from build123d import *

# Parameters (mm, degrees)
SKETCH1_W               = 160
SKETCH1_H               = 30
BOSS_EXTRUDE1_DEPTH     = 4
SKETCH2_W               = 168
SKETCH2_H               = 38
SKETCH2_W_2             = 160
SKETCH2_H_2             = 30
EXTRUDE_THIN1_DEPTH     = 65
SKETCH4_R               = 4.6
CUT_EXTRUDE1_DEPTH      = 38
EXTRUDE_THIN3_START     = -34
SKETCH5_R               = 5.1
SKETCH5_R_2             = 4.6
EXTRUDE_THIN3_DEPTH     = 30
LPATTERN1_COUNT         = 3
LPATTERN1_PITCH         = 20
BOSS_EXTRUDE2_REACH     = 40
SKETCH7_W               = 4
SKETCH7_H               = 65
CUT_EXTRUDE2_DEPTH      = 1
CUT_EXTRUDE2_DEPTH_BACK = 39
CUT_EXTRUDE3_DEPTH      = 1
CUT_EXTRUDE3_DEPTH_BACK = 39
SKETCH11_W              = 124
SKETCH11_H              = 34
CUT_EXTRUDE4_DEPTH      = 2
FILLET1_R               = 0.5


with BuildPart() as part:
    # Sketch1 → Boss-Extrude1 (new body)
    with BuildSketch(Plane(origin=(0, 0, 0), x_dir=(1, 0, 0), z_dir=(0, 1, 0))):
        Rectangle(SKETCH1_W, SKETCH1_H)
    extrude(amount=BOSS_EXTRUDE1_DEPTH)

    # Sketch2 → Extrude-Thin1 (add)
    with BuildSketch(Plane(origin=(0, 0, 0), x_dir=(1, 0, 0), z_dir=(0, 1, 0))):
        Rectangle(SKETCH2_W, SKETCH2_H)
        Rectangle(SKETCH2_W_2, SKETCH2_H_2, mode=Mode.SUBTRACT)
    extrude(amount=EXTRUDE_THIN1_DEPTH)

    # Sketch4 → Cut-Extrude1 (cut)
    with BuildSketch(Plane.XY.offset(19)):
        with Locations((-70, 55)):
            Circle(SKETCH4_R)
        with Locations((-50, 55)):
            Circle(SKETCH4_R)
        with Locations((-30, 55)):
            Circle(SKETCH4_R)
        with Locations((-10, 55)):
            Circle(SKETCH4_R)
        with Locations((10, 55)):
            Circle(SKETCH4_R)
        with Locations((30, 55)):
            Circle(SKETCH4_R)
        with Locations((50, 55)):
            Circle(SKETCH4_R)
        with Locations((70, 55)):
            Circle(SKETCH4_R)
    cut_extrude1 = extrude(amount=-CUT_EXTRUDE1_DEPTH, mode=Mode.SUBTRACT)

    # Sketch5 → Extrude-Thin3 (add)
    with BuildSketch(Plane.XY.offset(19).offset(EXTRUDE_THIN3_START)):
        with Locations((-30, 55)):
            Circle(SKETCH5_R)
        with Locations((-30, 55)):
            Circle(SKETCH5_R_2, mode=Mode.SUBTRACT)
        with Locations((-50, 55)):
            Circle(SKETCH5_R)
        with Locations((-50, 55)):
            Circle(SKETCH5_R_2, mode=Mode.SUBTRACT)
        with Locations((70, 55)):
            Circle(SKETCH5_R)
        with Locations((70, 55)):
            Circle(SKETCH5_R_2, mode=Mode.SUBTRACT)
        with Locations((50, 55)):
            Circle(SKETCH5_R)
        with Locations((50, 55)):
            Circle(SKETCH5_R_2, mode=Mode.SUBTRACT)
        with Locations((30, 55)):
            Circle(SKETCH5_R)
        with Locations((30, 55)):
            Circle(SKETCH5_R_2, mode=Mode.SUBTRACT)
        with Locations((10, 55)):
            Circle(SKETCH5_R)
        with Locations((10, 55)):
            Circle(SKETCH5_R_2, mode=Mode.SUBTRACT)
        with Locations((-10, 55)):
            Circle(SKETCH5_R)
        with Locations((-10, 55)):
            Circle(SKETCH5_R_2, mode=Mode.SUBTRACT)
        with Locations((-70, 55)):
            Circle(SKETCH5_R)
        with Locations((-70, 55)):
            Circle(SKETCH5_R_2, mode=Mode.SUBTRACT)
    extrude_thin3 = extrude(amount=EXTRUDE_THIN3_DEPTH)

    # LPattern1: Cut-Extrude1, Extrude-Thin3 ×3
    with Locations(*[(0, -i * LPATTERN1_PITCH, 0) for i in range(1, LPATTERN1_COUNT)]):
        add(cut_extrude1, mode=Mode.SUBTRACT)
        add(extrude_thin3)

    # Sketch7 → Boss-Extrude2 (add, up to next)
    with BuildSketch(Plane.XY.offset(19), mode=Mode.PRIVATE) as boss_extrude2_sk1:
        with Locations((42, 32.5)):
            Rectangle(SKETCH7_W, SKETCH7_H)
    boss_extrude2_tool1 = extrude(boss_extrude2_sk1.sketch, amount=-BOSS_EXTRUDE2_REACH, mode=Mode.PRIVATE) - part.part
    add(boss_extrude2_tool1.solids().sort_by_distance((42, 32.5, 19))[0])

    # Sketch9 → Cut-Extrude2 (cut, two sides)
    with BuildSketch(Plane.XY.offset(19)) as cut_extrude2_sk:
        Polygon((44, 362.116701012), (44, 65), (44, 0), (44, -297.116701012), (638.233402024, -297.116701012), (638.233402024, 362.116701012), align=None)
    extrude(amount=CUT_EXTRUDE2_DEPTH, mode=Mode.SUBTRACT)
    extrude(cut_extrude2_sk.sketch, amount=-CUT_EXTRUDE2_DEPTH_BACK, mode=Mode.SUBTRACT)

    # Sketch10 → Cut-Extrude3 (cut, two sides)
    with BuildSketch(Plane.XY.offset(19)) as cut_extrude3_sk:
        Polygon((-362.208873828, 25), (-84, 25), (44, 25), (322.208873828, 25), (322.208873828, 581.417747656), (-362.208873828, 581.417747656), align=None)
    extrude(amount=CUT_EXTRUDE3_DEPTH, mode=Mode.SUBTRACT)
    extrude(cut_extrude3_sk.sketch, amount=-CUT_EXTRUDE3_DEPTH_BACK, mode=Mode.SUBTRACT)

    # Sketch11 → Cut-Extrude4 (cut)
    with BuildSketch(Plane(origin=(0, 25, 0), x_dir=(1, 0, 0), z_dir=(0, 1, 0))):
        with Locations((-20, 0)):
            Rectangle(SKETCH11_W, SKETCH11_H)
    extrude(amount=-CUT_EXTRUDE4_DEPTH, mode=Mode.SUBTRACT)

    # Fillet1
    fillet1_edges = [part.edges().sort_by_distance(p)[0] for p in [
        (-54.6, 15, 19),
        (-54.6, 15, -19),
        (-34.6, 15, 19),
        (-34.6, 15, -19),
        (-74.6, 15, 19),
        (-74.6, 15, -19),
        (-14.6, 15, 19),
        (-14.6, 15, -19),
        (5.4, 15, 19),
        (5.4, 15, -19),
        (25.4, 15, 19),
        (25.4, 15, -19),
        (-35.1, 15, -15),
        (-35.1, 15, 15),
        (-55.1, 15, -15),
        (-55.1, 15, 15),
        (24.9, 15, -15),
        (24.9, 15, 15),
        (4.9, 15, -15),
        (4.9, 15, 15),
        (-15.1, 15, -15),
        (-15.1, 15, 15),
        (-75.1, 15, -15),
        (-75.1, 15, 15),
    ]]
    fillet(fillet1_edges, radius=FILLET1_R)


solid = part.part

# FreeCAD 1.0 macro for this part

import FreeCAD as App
import Part
import Sketcher
Q = App.Units.Quantity


def edges_at(feature, points):
    """Names of the edges that pass closest to the given points."""
    edges = feature.Shape.Edges
    near = lambda p: min(range(len(edges)), key=lambda i: edges[i].distToShape(Part.Vertex(*p))[0])
    return sorted({f"Edge{near(p) + 1}" for p in points})

doc = App.newDocument("Part")
body = doc.addObject("PartDesign::Body", "Body")

# Sketch on XZ plane
sketch1 = body.newObject("Sketcher::SketchObject", "Sketch")
sketch1.AttachmentSupport = (doc.getObject("XZ_Plane"), [""])
sketch1.MapMode = "FlatFace"
sketch1.addGeometry(Part.LineSegment(App.Vector(-80, -15, 0), App.Vector(-80, 15, 0)), False)
sketch1.addGeometry(Part.LineSegment(App.Vector(-80, 15, 0), App.Vector(80, 15, 0)), False)
sketch1.addGeometry(Part.LineSegment(App.Vector(80, 15, 0), App.Vector(80, -15, 0)), False)
sketch1.addGeometry(Part.LineSegment(App.Vector(80, -15, 0), App.Vector(-80, -15, 0)), False)
sketch1.addConstraint(Sketcher.Constraint("Coincident", 0, 2, 1, 1))
sketch1.addConstraint(Sketcher.Constraint("Coincident", 1, 2, 2, 1))
sketch1.addConstraint(Sketcher.Constraint("Coincident", 2, 2, 3, 1))
sketch1.addConstraint(Sketcher.Constraint("Coincident", 3, 2, 0, 1))
sketch1.addConstraint(Sketcher.Constraint("Vertical", 0))
sketch1.addConstraint(Sketcher.Constraint("Horizontal", 1))
sketch1.addConstraint(Sketcher.Constraint("Vertical", 2))
sketch1.addConstraint(Sketcher.Constraint("Horizontal", 3))
sketch1.addConstraint(Sketcher.Constraint("Symmetric", 0, 2, 2, 2, -1, 1))
sketch1.addConstraint(Sketcher.Constraint("DistanceX", 1, 1, 1, 2, Q("160 mm")))
sketch1.addConstraint(Sketcher.Constraint("DistanceY", 0, 1, 0, 2, Q("30 mm")))
pad1 = body.newObject("PartDesign::Pad", "Pad")
pad1.Profile = sketch1
pad1.Length = 4
pad1.Reversed = True

# Sketch on XZ plane
sketch2 = body.newObject("Sketcher::SketchObject", "Sketch001")
sketch2.AttachmentSupport = (doc.getObject("XZ_Plane"), [""])
sketch2.MapMode = "FlatFace"
sketch2.addGeometry(Part.LineSegment(App.Vector(-84, -19, 0), App.Vector(-84, 19, 0)), False)
sketch2.addGeometry(Part.LineSegment(App.Vector(-84, 19, 0), App.Vector(84, 19, 0)), False)
sketch2.addGeometry(Part.LineSegment(App.Vector(84, 19, 0), App.Vector(84, -19, 0)), False)
sketch2.addGeometry(Part.LineSegment(App.Vector(84, -19, 0), App.Vector(-84, -19, 0)), False)
sketch2.addGeometry(Part.LineSegment(App.Vector(80, 15, 0), App.Vector(-80, 15, 0)), False)
sketch2.addGeometry(Part.LineSegment(App.Vector(-80, 15, 0), App.Vector(-80, -15, 0)), False)
sketch2.addGeometry(Part.LineSegment(App.Vector(-80, -15, 0), App.Vector(80, -15, 0)), False)
sketch2.addGeometry(Part.LineSegment(App.Vector(80, -15, 0), App.Vector(80, 15, 0)), False)
sketch2.addConstraint(Sketcher.Constraint("Coincident", 0, 2, 1, 1))
sketch2.addConstraint(Sketcher.Constraint("Coincident", 1, 2, 2, 1))
sketch2.addConstraint(Sketcher.Constraint("Coincident", 2, 2, 3, 1))
sketch2.addConstraint(Sketcher.Constraint("Coincident", 3, 2, 0, 1))
sketch2.addConstraint(Sketcher.Constraint("Coincident", 4, 2, 5, 1))
sketch2.addConstraint(Sketcher.Constraint("Coincident", 5, 2, 6, 1))
sketch2.addConstraint(Sketcher.Constraint("Coincident", 6, 2, 7, 1))
sketch2.addConstraint(Sketcher.Constraint("Coincident", 7, 2, 4, 1))
sketch2.addConstraint(Sketcher.Constraint("Vertical", 0))
sketch2.addConstraint(Sketcher.Constraint("Horizontal", 1))
sketch2.addConstraint(Sketcher.Constraint("Vertical", 2))
sketch2.addConstraint(Sketcher.Constraint("Horizontal", 3))
sketch2.addConstraint(Sketcher.Constraint("Horizontal", 4))
sketch2.addConstraint(Sketcher.Constraint("Vertical", 5))
sketch2.addConstraint(Sketcher.Constraint("Horizontal", 6))
sketch2.addConstraint(Sketcher.Constraint("Vertical", 7))
sketch2.addConstraint(Sketcher.Constraint("Symmetric", 0, 2, 2, 2, -1, 1))
sketch2.addConstraint(Sketcher.Constraint("Symmetric", 4, 2, 6, 2, -1, 1))
sketch2.addConstraint(Sketcher.Constraint("DistanceX", 1, 1, 1, 2, Q("168 mm")))
sketch2.addConstraint(Sketcher.Constraint("DistanceX", 4, 2, 4, 1, Q("160 mm")))
sketch2.addConstraint(Sketcher.Constraint("DistanceY", 0, 1, 0, 2, Q("38 mm")))
sketch2.addConstraint(Sketcher.Constraint("DistanceY", 5, 2, 5, 1, Q("30 mm")))
pad2 = body.newObject("PartDesign::Pad", "Pad001")
pad2.Profile = sketch2
pad2.Length = 65
pad2.Reversed = True

# Sketch on XY plane
sketch3 = body.newObject("Sketcher::SketchObject", "Sketch002")
sketch3.AttachmentSupport = (doc.getObject("XY_Plane"), [""])
sketch3.MapMode = "FlatFace"
sketch3.AttachmentOffset = App.Placement(App.Vector(0, 0, 19), App.Rotation())
sketch3.addGeometry(Part.Circle(App.Vector(-70, 55, 0), App.Vector(0, 0, 1), 4.6), False)
sketch3.addGeometry(Part.Circle(App.Vector(-50, 55, 0), App.Vector(0, 0, 1), 4.6), False)
sketch3.addGeometry(Part.Circle(App.Vector(-30, 55, 0), App.Vector(0, 0, 1), 4.6), False)
sketch3.addGeometry(Part.Circle(App.Vector(-10, 55, 0), App.Vector(0, 0, 1), 4.6), False)
sketch3.addGeometry(Part.Circle(App.Vector(10, 55, 0), App.Vector(0, 0, 1), 4.6), False)
sketch3.addGeometry(Part.Circle(App.Vector(30, 55, 0), App.Vector(0, 0, 1), 4.6), False)
sketch3.addGeometry(Part.Circle(App.Vector(50, 55, 0), App.Vector(0, 0, 1), 4.6), False)
sketch3.addGeometry(Part.Circle(App.Vector(70, 55, 0), App.Vector(0, 0, 1), 4.6), False)
sketch3.addConstraint(Sketcher.Constraint("Equal", 0, 1))
sketch3.addConstraint(Sketcher.Constraint("Equal", 1, 2))
sketch3.addConstraint(Sketcher.Constraint("Equal", 2, 3))
sketch3.addConstraint(Sketcher.Constraint("Equal", 3, 4))
sketch3.addConstraint(Sketcher.Constraint("Equal", 4, 5))
sketch3.addConstraint(Sketcher.Constraint("Equal", 5, 6))
sketch3.addConstraint(Sketcher.Constraint("Equal", 6, 7))
sketch3.addConstraint(Sketcher.Constraint("Symmetric", 3, 3, 4, 3, -2))
sketch3.addConstraint(Sketcher.Constraint("Symmetric", 2, 3, 5, 3, -2))
sketch3.addConstraint(Sketcher.Constraint("Symmetric", 1, 3, 6, 3, -2))
sketch3.addConstraint(Sketcher.Constraint("Symmetric", 0, 3, 7, 3, -2))
sketch3.addConstraint(Sketcher.Constraint("Horizontal", 0, 3, 1, 3))
sketch3.addConstraint(Sketcher.Constraint("Horizontal", 1, 3, 2, 3))
sketch3.addConstraint(Sketcher.Constraint("Horizontal", 2, 3, 3, 3))
sketch3.addConstraint(Sketcher.Constraint("Diameter", 0, Q("9.2 mm")))
sketch3.addConstraint(Sketcher.Constraint("DistanceX", 0, 3, -1, 1, Q("70 mm")))
sketch3.addConstraint(Sketcher.Constraint("DistanceY", -1, 1, 0, 3, Q("55 mm")))
sketch3.addConstraint(Sketcher.Constraint("DistanceX", 1, 3, -1, 1, Q("50 mm")))
sketch3.addConstraint(Sketcher.Constraint("DistanceX", 2, 3, -1, 1, Q("30 mm")))
sketch3.addConstraint(Sketcher.Constraint("DistanceX", 3, 3, -1, 1, Q("10 mm")))
pocket1 = body.newObject("PartDesign::Pocket", "Pocket")
pocket1.Profile = sketch3
pocket1.Length = 38

# Sketch on XY plane
sketch4 = body.newObject("Sketcher::SketchObject", "Sketch003")
sketch4.AttachmentSupport = (doc.getObject("XY_Plane"), [""])
sketch4.MapMode = "FlatFace"
sketch4.AttachmentOffset = App.Placement(App.Vector(0, 0, -15), App.Rotation())
sketch4.addGeometry(Part.Circle(App.Vector(-30, 55, 0), App.Vector(0, 0, 1), 5.1), False)
sketch4.addGeometry(Part.Circle(App.Vector(-30, 55, 0), App.Vector(0, 0, 1), 4.6), False)
sketch4.addGeometry(Part.Circle(App.Vector(-50, 55, 0), App.Vector(0, 0, 1), 5.1), False)
sketch4.addGeometry(Part.Circle(App.Vector(-50, 55, 0), App.Vector(0, 0, 1), 4.6), False)
sketch4.addGeometry(Part.Circle(App.Vector(70, 55, 0), App.Vector(0, 0, 1), 5.1), False)
sketch4.addGeometry(Part.Circle(App.Vector(70, 55, 0), App.Vector(0, 0, 1), 4.6), False)
sketch4.addGeometry(Part.Circle(App.Vector(50, 55, 0), App.Vector(0, 0, 1), 5.1), False)
sketch4.addGeometry(Part.Circle(App.Vector(50, 55, 0), App.Vector(0, 0, 1), 4.6), False)
sketch4.addGeometry(Part.Circle(App.Vector(30, 55, 0), App.Vector(0, 0, 1), 5.1), False)
sketch4.addGeometry(Part.Circle(App.Vector(30, 55, 0), App.Vector(0, 0, 1), 4.6), False)
sketch4.addGeometry(Part.Circle(App.Vector(10, 55, 0), App.Vector(0, 0, 1), 5.1), False)
sketch4.addGeometry(Part.Circle(App.Vector(10, 55, 0), App.Vector(0, 0, 1), 4.6), False)
sketch4.addGeometry(Part.Circle(App.Vector(-10, 55, 0), App.Vector(0, 0, 1), 5.1), False)
sketch4.addGeometry(Part.Circle(App.Vector(-10, 55, 0), App.Vector(0, 0, 1), 4.6), False)
sketch4.addGeometry(Part.Circle(App.Vector(-70, 55, 0), App.Vector(0, 0, 1), 5.1), False)
sketch4.addGeometry(Part.Circle(App.Vector(-70, 55, 0), App.Vector(0, 0, 1), 4.6), False)
sketch4.addConstraint(Sketcher.Constraint("Coincident", 1, 3, 0, 3))
sketch4.addConstraint(Sketcher.Constraint("Coincident", 3, 3, 2, 3))
sketch4.addConstraint(Sketcher.Constraint("Coincident", 5, 3, 4, 3))
sketch4.addConstraint(Sketcher.Constraint("Coincident", 7, 3, 6, 3))
sketch4.addConstraint(Sketcher.Constraint("Coincident", 9, 3, 8, 3))
sketch4.addConstraint(Sketcher.Constraint("Coincident", 11, 3, 10, 3))
sketch4.addConstraint(Sketcher.Constraint("Coincident", 13, 3, 12, 3))
sketch4.addConstraint(Sketcher.Constraint("Coincident", 15, 3, 14, 3))
sketch4.addConstraint(Sketcher.Constraint("Equal", 0, 2))
sketch4.addConstraint(Sketcher.Constraint("Equal", 1, 3))
sketch4.addConstraint(Sketcher.Constraint("Equal", 2, 4))
sketch4.addConstraint(Sketcher.Constraint("Equal", 3, 5))
sketch4.addConstraint(Sketcher.Constraint("Equal", 4, 6))
sketch4.addConstraint(Sketcher.Constraint("Equal", 5, 7))
sketch4.addConstraint(Sketcher.Constraint("Equal", 6, 8))
sketch4.addConstraint(Sketcher.Constraint("Equal", 7, 9))
sketch4.addConstraint(Sketcher.Constraint("Equal", 8, 10))
sketch4.addConstraint(Sketcher.Constraint("Equal", 9, 11))
sketch4.addConstraint(Sketcher.Constraint("Equal", 10, 12))
sketch4.addConstraint(Sketcher.Constraint("Equal", 11, 13))
sketch4.addConstraint(Sketcher.Constraint("Equal", 12, 14))
sketch4.addConstraint(Sketcher.Constraint("Equal", 13, 15))
sketch4.addConstraint(Sketcher.Constraint("Symmetric", 2, 3, 6, 3, -2))
sketch4.addConstraint(Sketcher.Constraint("Symmetric", 0, 3, 8, 3, -2))
sketch4.addConstraint(Sketcher.Constraint("Symmetric", 10, 3, 12, 3, -2))
sketch4.addConstraint(Sketcher.Constraint("Symmetric", 4, 3, 14, 3, -2))
sketch4.addConstraint(Sketcher.Constraint("Horizontal", 1, 3, 2, 3))
sketch4.addConstraint(Sketcher.Constraint("Horizontal", 3, 3, 4, 3))
sketch4.addConstraint(Sketcher.Constraint("Horizontal", 9, 3, 10, 3))
sketch4.addConstraint(Sketcher.Constraint("Diameter", 0, Q("10.2 mm")))
sketch4.addConstraint(Sketcher.Constraint("Diameter", 1, Q("9.2 mm")))
sketch4.addConstraint(Sketcher.Constraint("DistanceX", 0, 3, -1, 1, Q("30 mm")))
sketch4.addConstraint(Sketcher.Constraint("DistanceY", -1, 1, 0, 3, Q("55 mm")))
sketch4.addConstraint(Sketcher.Constraint("DistanceX", 2, 3, -1, 1, Q("50 mm")))
sketch4.addConstraint(Sketcher.Constraint("DistanceX", -1, 1, 4, 3, Q("70 mm")))
sketch4.addConstraint(Sketcher.Constraint("DistanceX", -1, 1, 10, 3, Q("10 mm")))
pad3 = body.newObject("PartDesign::Pad", "Pad002")
pad3.Profile = sketch4
pad3.Length = 30
doc.recompute()

linearpattern = body.newObject("PartDesign::LinearPattern", "LinearPattern")
linearpattern.Originals = [pocket1, pad3]
linearpattern.Direction = (doc.getObject("Y_Axis"), [""])
linearpattern.Mode = "offset"
linearpattern.Offset = 20
linearpattern.Occurrences = 3
linearpattern.Reversed = True
body.Tip = linearpattern

# Sketch on XY plane
sketch5 = body.newObject("Sketcher::SketchObject", "Sketch004")
sketch5.AttachmentSupport = (doc.getObject("XY_Plane"), [""])
sketch5.MapMode = "FlatFace"
sketch5.AttachmentOffset = App.Placement(App.Vector(0, 0, 19), App.Rotation())
sketch5.addGeometry(Part.LineSegment(App.Vector(40, 65, 0), App.Vector(40, 0, 0)), False)
sketch5.addGeometry(Part.LineSegment(App.Vector(40, 0, 0), App.Vector(44, 0, 0)), False)
sketch5.addGeometry(Part.LineSegment(App.Vector(44, 0, 0), App.Vector(44, 65, 0)), False)
sketch5.addGeometry(Part.LineSegment(App.Vector(44, 65, 0), App.Vector(40, 65, 0)), False)
sketch5.addConstraint(Sketcher.Constraint("Coincident", 0, 2, 1, 1))
sketch5.addConstraint(Sketcher.Constraint("Coincident", 1, 2, 2, 1))
sketch5.addConstraint(Sketcher.Constraint("Coincident", 2, 2, 3, 1))
sketch5.addConstraint(Sketcher.Constraint("Coincident", 3, 2, 0, 1))
sketch5.addConstraint(Sketcher.Constraint("Vertical", 0))
sketch5.addConstraint(Sketcher.Constraint("Horizontal", 1))
sketch5.addConstraint(Sketcher.Constraint("Vertical", 2))
sketch5.addConstraint(Sketcher.Constraint("Horizontal", 3))
sketch5.addConstraint(Sketcher.Constraint("PointOnObject", 0, 2, -1))
sketch5.addConstraint(Sketcher.Constraint("DistanceX", 1, 1, 1, 2, Q("4 mm")))
sketch5.addConstraint(Sketcher.Constraint("DistanceY", 0, 2, 0, 1, Q("65 mm")))
sketch5.addConstraint(Sketcher.Constraint("DistanceX", -1, 1, 0, 2, Q("40 mm")))
pad4 = body.newObject("PartDesign::Pad", "Pad003")
pad4.Profile = sketch5
pad4.Length = 34
pad4.Reversed = True

# Sketch on XY plane
sketch6 = body.newObject("Sketcher::SketchObject", "Sketch005")
sketch6.AttachmentSupport = (doc.getObject("XY_Plane"), [""])
sketch6.MapMode = "FlatFace"
sketch6.AttachmentOffset = App.Placement(App.Vector(0, 0, 19), App.Rotation())
sketch6.addGeometry(Part.LineSegment(App.Vector(44, 362.116701, 0), App.Vector(44, -297.116701, 0)), False)
sketch6.addGeometry(Part.LineSegment(App.Vector(44, -297.116701, 0), App.Vector(638.233402, -297.116701, 0)), False)
sketch6.addGeometry(Part.LineSegment(App.Vector(638.233402, -297.116701, 0), App.Vector(638.233402, 362.116701, 0)), False)
sketch6.addGeometry(Part.LineSegment(App.Vector(638.233402, 362.116701, 0), App.Vector(44, 362.116701, 0)), False)
sketch6.addConstraint(Sketcher.Constraint("Coincident", 0, 2, 1, 1))
sketch6.addConstraint(Sketcher.Constraint("Coincident", 1, 2, 2, 1))
sketch6.addConstraint(Sketcher.Constraint("Coincident", 2, 2, 3, 1))
sketch6.addConstraint(Sketcher.Constraint("Coincident", 3, 2, 0, 1))
sketch6.addConstraint(Sketcher.Constraint("Vertical", 0))
sketch6.addConstraint(Sketcher.Constraint("Horizontal", 1))
sketch6.addConstraint(Sketcher.Constraint("Vertical", 2))
sketch6.addConstraint(Sketcher.Constraint("Horizontal", 3))
sketch6.addConstraint(Sketcher.Constraint("DistanceX", -1, 1, 0, 2, Q("44 mm")))
sketch6.addConstraint(Sketcher.Constraint("DistanceY", 0, 2, -1, 1, Q("297.116701 mm")))
sketch6.addConstraint(Sketcher.Constraint("DistanceY", -1, 1, 2, 2, Q("362.116701 mm")))
sketch6.addConstraint(Sketcher.Constraint("DistanceX", 1, 1, 1, 2, Q("594.233402 mm")))
pocket2 = body.newObject("PartDesign::Pocket", "Pocket001")
pocket2.Profile = sketch6
pocket2.Type = "ThroughAll"
pocket2.Midplane = True

# Sketch on XY plane
sketch7 = body.newObject("Sketcher::SketchObject", "Sketch006")
sketch7.AttachmentSupport = (doc.getObject("XY_Plane"), [""])
sketch7.MapMode = "FlatFace"
sketch7.AttachmentOffset = App.Placement(App.Vector(0, 0, 19), App.Rotation())
sketch7.addGeometry(Part.LineSegment(App.Vector(-362.208874, 25, 0), App.Vector(322.208874, 25, 0)), False)
sketch7.addGeometry(Part.LineSegment(App.Vector(322.208874, 25, 0), App.Vector(322.208874, 581.417748, 0)), False)
sketch7.addGeometry(Part.LineSegment(App.Vector(322.208874, 581.417748, 0), App.Vector(-362.208874, 581.417748, 0)), False)
sketch7.addGeometry(Part.LineSegment(App.Vector(-362.208874, 581.417748, 0), App.Vector(-362.208874, 25, 0)), False)
sketch7.addConstraint(Sketcher.Constraint("Coincident", 0, 2, 1, 1))
sketch7.addConstraint(Sketcher.Constraint("Coincident", 1, 2, 2, 1))
sketch7.addConstraint(Sketcher.Constraint("Coincident", 2, 2, 3, 1))
sketch7.addConstraint(Sketcher.Constraint("Coincident", 3, 2, 0, 1))
sketch7.addConstraint(Sketcher.Constraint("Horizontal", 0))
sketch7.addConstraint(Sketcher.Constraint("Vertical", 1))
sketch7.addConstraint(Sketcher.Constraint("Horizontal", 2))
sketch7.addConstraint(Sketcher.Constraint("Vertical", 3))
sketch7.addConstraint(Sketcher.Constraint("DistanceY", -1, 1, 0, 2, Q("25 mm")))
sketch7.addConstraint(Sketcher.Constraint("DistanceX", 0, 1, 0, 2, Q("684.417748 mm")))
sketch7.addConstraint(Sketcher.Constraint("DistanceY", 1, 1, 1, 2, Q("556.417748 mm")))
sketch7.addConstraint(Sketcher.Constraint("DistanceX", -1, 1, 0, 2, Q("322.208874 mm")))
pocket3 = body.newObject("PartDesign::Pocket", "Pocket002")
pocket3.Profile = sketch7
pocket3.Type = "ThroughAll"
pocket3.Midplane = True

# Sketch on XZ plane
sketch8 = body.newObject("Sketcher::SketchObject", "Sketch007")
sketch8.AttachmentSupport = (doc.getObject("XZ_Plane"), [""])
sketch8.MapMode = "FlatFace"
sketch8.AttachmentOffset = App.Placement(App.Vector(0, 0, -25), App.Rotation())
sketch8.addGeometry(Part.LineSegment(App.Vector(-82, -17, 0), App.Vector(-82, 17, 0)), False)
sketch8.addGeometry(Part.LineSegment(App.Vector(-82, 17, 0), App.Vector(42, 17, 0)), False)
sketch8.addGeometry(Part.LineSegment(App.Vector(42, 17, 0), App.Vector(42, -17, 0)), False)
sketch8.addGeometry(Part.LineSegment(App.Vector(42, -17, 0), App.Vector(-82, -17, 0)), False)
sketch8.addConstraint(Sketcher.Constraint("Coincident", 0, 2, 1, 1))
sketch8.addConstraint(Sketcher.Constraint("Coincident", 1, 2, 2, 1))
sketch8.addConstraint(Sketcher.Constraint("Coincident", 2, 2, 3, 1))
sketch8.addConstraint(Sketcher.Constraint("Coincident", 3, 2, 0, 1))
sketch8.addConstraint(Sketcher.Constraint("Vertical", 0))
sketch8.addConstraint(Sketcher.Constraint("Horizontal", 1))
sketch8.addConstraint(Sketcher.Constraint("Vertical", 2))
sketch8.addConstraint(Sketcher.Constraint("Horizontal", 3))
sketch8.addConstraint(Sketcher.Constraint("DistanceX", 1, 1, 1, 2, Q("124 mm")))
sketch8.addConstraint(Sketcher.Constraint("DistanceY", 0, 1, 0, 2, Q("34 mm")))
sketch8.addConstraint(Sketcher.Constraint("DistanceX", 0, 2, -1, 1, Q("82 mm")))
sketch8.addConstraint(Sketcher.Constraint("DistanceY", -1, 1, 0, 2, Q("17 mm")))
pocket4 = body.newObject("PartDesign::Pocket", "Pocket003")
pocket4.Profile = sketch8
pocket4.Length = 2
pocket4.Reversed = True
doc.recompute()

fillet = body.newObject("PartDesign::Fillet", "Fillet")
fillet.Base = (pocket4, edges_at(pocket4, [
    (-54.6, 15, 19),
    (-54.6, 15, -19),
    (-34.6, 15, 19),
    (-34.6, 15, -19),
    (-74.6, 15, 19),
    (-74.6, 15, -19),
    (-14.6, 15, 19),
    (-14.6, 15, -19),
    (5.4, 15, 19),
    (5.4, 15, -19),
    (25.4, 15, 19),
    (25.4, 15, -19),
    (-35.1, 15, -15),
    (-35.1, 15, 15),
    (-55.1, 15, -15),
    (-55.1, 15, 15),
    (24.9, 15, -15),
    (24.9, 15, 15),
    (4.9, 15, -15),
    (4.9, 15, 15),
    (-15.1, 15, -15),
    (-15.1, 15, 15),
    (-75.1, 15, -15),
    (-75.1, 15, 15),
]))
fillet.Radius = 0.5

doc.recompute()
